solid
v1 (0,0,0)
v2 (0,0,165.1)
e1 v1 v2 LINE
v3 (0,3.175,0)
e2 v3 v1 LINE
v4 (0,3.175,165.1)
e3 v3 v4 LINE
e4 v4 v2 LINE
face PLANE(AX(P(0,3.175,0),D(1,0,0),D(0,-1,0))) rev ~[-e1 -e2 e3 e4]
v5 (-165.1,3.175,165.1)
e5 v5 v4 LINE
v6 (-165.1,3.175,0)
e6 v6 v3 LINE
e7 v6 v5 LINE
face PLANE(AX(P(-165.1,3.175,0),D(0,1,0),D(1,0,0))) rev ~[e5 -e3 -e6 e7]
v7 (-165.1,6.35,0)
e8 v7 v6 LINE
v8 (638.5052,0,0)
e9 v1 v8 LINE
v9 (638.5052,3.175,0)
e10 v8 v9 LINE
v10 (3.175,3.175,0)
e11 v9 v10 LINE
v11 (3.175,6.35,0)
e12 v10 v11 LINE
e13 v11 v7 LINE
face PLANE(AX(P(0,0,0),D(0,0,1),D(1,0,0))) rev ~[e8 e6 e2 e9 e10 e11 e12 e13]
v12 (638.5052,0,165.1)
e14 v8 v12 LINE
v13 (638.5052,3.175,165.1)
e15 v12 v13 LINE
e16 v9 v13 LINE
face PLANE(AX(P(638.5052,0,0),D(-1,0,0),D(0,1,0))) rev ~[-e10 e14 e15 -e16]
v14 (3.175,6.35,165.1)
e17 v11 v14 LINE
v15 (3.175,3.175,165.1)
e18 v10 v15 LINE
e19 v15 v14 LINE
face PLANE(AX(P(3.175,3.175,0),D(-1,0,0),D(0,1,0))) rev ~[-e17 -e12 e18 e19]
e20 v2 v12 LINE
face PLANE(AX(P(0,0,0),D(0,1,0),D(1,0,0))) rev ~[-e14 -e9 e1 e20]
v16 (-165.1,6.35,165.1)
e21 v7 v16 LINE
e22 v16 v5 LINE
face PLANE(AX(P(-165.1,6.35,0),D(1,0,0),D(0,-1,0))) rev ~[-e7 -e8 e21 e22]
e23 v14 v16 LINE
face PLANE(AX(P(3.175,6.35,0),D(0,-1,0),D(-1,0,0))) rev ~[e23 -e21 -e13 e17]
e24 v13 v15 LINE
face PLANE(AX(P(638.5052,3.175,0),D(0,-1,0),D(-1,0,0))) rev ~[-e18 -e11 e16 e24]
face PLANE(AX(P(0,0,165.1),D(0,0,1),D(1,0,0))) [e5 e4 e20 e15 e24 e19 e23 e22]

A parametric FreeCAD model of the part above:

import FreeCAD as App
import Part
import Sketcher
Q = App.Units.Quantity


def add_polygon(sketch, points):
    """Adds a closed chain of lines whose ends are joined by coincident constraints."""
    first, n = sketch.GeometryCount, len(points)
    for a, b in zip(points, points[1:] + points[:1]):
        sketch.addGeometry(Part.LineSegment(App.Vector(*a, 0), App.Vector(*b, 0)), False)
    for i in range(n):
        sketch.addConstraint(Sketcher.Constraint("Coincident", first + i, 2, first + (i + 1) % n, 1))

doc = App.newDocument("Part")
body = doc.addObject("PartDesign::Body", "Body")

# Sketch on XY plane
sketch1 = body.newObject("Sketcher::SketchObject", "Sketch")
sketch1.AttachmentSupport = (doc.getObject("XY_Plane"), [""])
sketch1.MapMode = "FlatFace"
add_polygon(sketch1, [(0, 3.2), (0, 0), (638.5, 0), (638.5, 3.2), (3.2, 3.2), (3.2, 6.3), (-165.1, 6.3), (-165.1, 3.2)])  # lines 0-7
sketch1.addConstraint([
    Sketcher.Constraint("Vertical", 0),
    Sketcher.Constraint("Horizontal", 1),
    Sketcher.Constraint("Vertical", 2),
    Sketcher.Constraint("Horizontal", 3),
    Sketcher.Constraint("Vertical", 4),
    Sketcher.Constraint("Horizontal", 5),
    Sketcher.Constraint("Vertical", 6),
    Sketcher.Constraint("Horizontal", 7),
    Sketcher.Constraint("Coincident", 0, 2, -1, 1),
    Sketcher.Constraint("Horizontal", 3, 2, 6, 2),
    Sketcher.Constraint("Equal", 2, 4),
    Sketcher.Constraint("DistanceX", 7, 1, 7, 2, Q("6.5 in")),
    Sketcher.Constraint("DistanceX", 1, 1, 1, 2, Q("25.138 in")),
    Sketcher.Constraint("DistanceY", 0, 2, 0, 1, Q("0.125 in")),
    Sketcher.Constraint("DistanceX", -1, 1, 3, 2, Q("0.125 in")),
])
pad1 = body.newObject("PartDesign::Pad", "Pad")
pad1.Profile = sketch1
pad1.Length = Q("6.5 in")

doc.recompute()
